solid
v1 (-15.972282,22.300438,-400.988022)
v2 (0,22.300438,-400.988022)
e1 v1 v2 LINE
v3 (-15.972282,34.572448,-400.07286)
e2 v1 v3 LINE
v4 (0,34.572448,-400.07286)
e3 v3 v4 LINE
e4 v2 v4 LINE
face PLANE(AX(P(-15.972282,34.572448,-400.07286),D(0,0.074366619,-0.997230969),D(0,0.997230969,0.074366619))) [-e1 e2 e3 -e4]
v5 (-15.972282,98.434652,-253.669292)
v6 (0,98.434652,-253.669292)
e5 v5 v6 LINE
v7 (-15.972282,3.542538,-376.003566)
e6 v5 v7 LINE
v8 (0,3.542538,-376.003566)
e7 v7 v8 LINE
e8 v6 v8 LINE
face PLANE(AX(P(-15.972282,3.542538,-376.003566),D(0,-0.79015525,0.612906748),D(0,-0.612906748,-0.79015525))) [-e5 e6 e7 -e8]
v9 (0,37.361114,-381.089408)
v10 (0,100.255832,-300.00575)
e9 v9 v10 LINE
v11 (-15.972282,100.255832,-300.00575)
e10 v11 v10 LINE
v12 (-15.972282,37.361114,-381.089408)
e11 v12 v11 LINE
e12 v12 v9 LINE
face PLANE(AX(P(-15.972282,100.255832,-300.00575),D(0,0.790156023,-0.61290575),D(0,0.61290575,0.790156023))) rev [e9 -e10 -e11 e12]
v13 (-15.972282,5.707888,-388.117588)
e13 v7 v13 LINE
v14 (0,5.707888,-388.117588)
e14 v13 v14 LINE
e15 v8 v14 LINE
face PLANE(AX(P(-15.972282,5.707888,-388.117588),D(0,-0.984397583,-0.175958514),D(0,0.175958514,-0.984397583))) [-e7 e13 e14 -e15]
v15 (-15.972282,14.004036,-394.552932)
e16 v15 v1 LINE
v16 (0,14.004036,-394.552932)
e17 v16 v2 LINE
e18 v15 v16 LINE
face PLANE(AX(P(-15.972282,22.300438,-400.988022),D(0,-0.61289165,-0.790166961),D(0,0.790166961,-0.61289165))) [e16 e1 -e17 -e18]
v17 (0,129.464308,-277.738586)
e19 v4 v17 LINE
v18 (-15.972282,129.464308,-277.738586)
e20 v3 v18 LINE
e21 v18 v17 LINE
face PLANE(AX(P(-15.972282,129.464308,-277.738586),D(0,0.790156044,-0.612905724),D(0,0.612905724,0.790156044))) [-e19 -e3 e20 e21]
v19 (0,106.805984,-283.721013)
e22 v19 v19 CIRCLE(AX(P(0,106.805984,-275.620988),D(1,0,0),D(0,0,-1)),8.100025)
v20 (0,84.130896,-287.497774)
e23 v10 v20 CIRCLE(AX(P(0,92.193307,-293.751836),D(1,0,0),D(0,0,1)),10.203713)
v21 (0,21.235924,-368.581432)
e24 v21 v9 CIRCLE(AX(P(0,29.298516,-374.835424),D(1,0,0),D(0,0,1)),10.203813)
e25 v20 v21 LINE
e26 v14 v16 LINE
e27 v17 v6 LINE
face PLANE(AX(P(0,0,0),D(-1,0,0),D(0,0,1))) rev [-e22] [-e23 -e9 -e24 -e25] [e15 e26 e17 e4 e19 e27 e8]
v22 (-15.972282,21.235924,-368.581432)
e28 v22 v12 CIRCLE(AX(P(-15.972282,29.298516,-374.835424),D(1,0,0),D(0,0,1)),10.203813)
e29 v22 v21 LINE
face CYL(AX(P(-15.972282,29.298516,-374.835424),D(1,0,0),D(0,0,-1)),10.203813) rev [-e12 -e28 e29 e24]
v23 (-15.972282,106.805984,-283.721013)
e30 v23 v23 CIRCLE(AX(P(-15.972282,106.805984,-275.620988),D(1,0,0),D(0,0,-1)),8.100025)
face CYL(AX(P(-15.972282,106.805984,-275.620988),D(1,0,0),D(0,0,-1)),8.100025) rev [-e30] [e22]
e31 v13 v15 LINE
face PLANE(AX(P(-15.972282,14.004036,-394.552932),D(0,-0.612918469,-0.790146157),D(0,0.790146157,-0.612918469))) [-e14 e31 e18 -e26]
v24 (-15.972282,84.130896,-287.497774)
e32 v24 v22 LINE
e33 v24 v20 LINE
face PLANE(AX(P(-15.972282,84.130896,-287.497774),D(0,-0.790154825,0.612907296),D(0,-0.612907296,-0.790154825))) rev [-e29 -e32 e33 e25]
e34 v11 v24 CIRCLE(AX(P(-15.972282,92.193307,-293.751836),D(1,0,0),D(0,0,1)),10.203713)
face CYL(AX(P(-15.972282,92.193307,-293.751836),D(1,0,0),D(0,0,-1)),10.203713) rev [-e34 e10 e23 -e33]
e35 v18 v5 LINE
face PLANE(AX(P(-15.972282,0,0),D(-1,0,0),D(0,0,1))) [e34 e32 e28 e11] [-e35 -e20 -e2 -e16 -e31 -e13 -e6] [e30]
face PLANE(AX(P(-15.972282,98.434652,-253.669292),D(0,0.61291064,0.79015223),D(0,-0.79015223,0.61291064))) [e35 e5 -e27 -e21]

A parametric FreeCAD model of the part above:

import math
import FreeCAD as App
import Part
import Sketcher
Q = App.Units.Quantity


def add_polygon(sketch, points):
    """Adds a closed chain of lines whose ends are joined by coincident constraints."""
    first, n = sketch.GeometryCount, len(points)
    for a, b in zip(points, points[1:] + points[:1]):
        sketch.addGeometry(Part.LineSegment(App.Vector(*a, 0), App.Vector(*b, 0)), False)
    for i in range(n):
        sketch.addConstraint(Sketcher.Constraint("Coincident", first + i, 2, first + (i + 1) % n, 1))

doc = App.newDocument("Part")
params = doc.addObject("Spreadsheet::Sheet", "Params")
for row, (alias, value) in enumerate([
    ("pad1_length", "15.972282 mm"),
], start=1):
    params.set(f"A{row}", alias)
    params.set(f"B{row}", "=" + value)
    params.setAlias(f"B{row}", alias)

body = doc.addObject("PartDesign::Body", "Body")

# Sketch on YZ plane
sketch1 = body.newObject("Sketcher::SketchObject", "Sketch")
sketch1.AttachmentSupport = (doc.getObject("YZ_Plane"), [""])
sketch1.MapMode = "FlatFace"
add_polygon(sketch1, [(129.464308, -277.738586), (98.434652, -253.669292), (3.542538, -376.003566), (5.707888, -388.117588), (14.004036, -394.552932), (22.300438, -400.988022), (34.572448, -400.07286)])  # lines 0-6
sketch1.addGeometry(Part.ArcOfCircle(Part.Circle(App.Vector(92.193307, -293.751836, 0), App.Vector(0, 0, 1), 10.203713), math.radians(-37.799906), math.radians(142.199047)), False)  # 7
sketch1.addGeometry(Part.LineSegment(App.Vector(100.255832, -300.00575, 0), App.Vector(37.361114, -381.089408, 0)), False)  # 8
sketch1.addGeometry(Part.ArcOfCircle(Part.Circle(App.Vector(29.298516, -374.835424, 0), App.Vector(0, 0, 1), 10.203813), math.radians(142.199982), math.radians(322.200033)), False)  # 9
sketch1.addGeometry(Part.LineSegment(App.Vector(21.235924, -368.581432, 0), App.Vector(84.130896, -287.497774, 0)), False)  # 10
sketch1.addGeometry(Part.Circle(App.Vector(106.805984, -275.620988, 0), App.Vector(0, 0, 1), 8.100025), False)  # 11
sketch1.addConstraint([
    Sketcher.Constraint("Coincident", 7, 1, 8, 1),
    Sketcher.Constraint("Coincident", 8, 2, 9, 2),
    Sketcher.Constraint("Coincident", 9, 1, 10, 1),
    Sketcher.Constraint("Coincident", 10, 2, 7, 2),
    Sketcher.Constraint("Diameter", 11, Q("16.200051 mm")),
    Sketcher.Constraint("Radius", 7, Q("10.203713 mm")),
    Sketcher.Constraint("Radius", 9, Q("10.203813 mm")),
    Sketcher.Constraint("DistanceX", 7, 3, 6, 2, Q("37.271001 mm")),
    Sketcher.Constraint("DistanceY", 2, 2, 11, 3, Q("112.4966 mm")),
    Sketcher.Constraint("DistanceY", 4, 2, 9, 3, Q("26.152598 mm")),
    Sketcher.Constraint("DistanceX", 1, 2, 4, 2, Q("18.7579 mm")),
    Sketcher.Constraint("DistanceY", 3, 2, 9, 1, Q("25.9715 mm")),
    Sketcher.Constraint("Distance", 0, Q("39.270478 mm")),
    Sketcher.Constraint("Distance", 3, Q("10.499511 mm")),
    Sketcher.Constraint("Distance", 6, Q("154.82293 mm")),
    Sketcher.Constraint("Distance", 10, Q("102.617431 mm")),
    Sketcher.Constraint("DistanceY", 11, 3, -1, 1, Q("275.620988 mm")),
    Sketcher.Constraint("DistanceX", -1, 1, 0, 2, Q("98.434652 mm")),
    Sketcher.Constraint("DistanceX", -1, 1, 1, 2, Q("3.542538 mm")),
    Sketcher.Constraint("DistanceY", 3, 2, -1, 1, Q("394.552932 mm")),
    Sketcher.Constraint("DistanceY", 4, 2, -1, 1, Q("400.988022 mm")),
    Sketcher.Constraint("DistanceY", 5, 2, -1, 1, Q("400.07286 mm")),
    Sketcher.Constraint("DistanceY", 7, 1, -1, 1, Q("300.00575 mm")),
    Sketcher.Constraint("DistanceY", 8, 2, -1, 1, Q("381.089408 mm")),
    Sketcher.Constraint("DistanceX", 9, 3, 7, 3, Q("62.894791 mm")),
    Sketcher.Constraint("DistanceX", 0, 2, 11, 3, Q("8.371332 mm")),
    Sketcher.Constraint("DistanceY", 9, 3, 0, 2, Q("121.166132 mm")),
    Sketcher.Constraint("DistanceX", 1, 2, 9, 3, Q("25.755978 mm")),
    Sketcher.Constraint("DistanceY", 1, 2, 7, 3, Q("82.25173 mm")),
    Sketcher.Constraint("DistanceX", 1, 2, 2, 2, Q("2.16535 mm")),
    Sketcher.Constraint("DistanceY", 7, 3, 6, 2, Q("16.01325 mm")),
])
pad1 = body.newObject("PartDesign::Pad", "Pad")
pad1.Profile = sketch1
pad1.setExpression("Length", "Params.pad1_length")
pad1.Reversed = True

doc.recompute()
